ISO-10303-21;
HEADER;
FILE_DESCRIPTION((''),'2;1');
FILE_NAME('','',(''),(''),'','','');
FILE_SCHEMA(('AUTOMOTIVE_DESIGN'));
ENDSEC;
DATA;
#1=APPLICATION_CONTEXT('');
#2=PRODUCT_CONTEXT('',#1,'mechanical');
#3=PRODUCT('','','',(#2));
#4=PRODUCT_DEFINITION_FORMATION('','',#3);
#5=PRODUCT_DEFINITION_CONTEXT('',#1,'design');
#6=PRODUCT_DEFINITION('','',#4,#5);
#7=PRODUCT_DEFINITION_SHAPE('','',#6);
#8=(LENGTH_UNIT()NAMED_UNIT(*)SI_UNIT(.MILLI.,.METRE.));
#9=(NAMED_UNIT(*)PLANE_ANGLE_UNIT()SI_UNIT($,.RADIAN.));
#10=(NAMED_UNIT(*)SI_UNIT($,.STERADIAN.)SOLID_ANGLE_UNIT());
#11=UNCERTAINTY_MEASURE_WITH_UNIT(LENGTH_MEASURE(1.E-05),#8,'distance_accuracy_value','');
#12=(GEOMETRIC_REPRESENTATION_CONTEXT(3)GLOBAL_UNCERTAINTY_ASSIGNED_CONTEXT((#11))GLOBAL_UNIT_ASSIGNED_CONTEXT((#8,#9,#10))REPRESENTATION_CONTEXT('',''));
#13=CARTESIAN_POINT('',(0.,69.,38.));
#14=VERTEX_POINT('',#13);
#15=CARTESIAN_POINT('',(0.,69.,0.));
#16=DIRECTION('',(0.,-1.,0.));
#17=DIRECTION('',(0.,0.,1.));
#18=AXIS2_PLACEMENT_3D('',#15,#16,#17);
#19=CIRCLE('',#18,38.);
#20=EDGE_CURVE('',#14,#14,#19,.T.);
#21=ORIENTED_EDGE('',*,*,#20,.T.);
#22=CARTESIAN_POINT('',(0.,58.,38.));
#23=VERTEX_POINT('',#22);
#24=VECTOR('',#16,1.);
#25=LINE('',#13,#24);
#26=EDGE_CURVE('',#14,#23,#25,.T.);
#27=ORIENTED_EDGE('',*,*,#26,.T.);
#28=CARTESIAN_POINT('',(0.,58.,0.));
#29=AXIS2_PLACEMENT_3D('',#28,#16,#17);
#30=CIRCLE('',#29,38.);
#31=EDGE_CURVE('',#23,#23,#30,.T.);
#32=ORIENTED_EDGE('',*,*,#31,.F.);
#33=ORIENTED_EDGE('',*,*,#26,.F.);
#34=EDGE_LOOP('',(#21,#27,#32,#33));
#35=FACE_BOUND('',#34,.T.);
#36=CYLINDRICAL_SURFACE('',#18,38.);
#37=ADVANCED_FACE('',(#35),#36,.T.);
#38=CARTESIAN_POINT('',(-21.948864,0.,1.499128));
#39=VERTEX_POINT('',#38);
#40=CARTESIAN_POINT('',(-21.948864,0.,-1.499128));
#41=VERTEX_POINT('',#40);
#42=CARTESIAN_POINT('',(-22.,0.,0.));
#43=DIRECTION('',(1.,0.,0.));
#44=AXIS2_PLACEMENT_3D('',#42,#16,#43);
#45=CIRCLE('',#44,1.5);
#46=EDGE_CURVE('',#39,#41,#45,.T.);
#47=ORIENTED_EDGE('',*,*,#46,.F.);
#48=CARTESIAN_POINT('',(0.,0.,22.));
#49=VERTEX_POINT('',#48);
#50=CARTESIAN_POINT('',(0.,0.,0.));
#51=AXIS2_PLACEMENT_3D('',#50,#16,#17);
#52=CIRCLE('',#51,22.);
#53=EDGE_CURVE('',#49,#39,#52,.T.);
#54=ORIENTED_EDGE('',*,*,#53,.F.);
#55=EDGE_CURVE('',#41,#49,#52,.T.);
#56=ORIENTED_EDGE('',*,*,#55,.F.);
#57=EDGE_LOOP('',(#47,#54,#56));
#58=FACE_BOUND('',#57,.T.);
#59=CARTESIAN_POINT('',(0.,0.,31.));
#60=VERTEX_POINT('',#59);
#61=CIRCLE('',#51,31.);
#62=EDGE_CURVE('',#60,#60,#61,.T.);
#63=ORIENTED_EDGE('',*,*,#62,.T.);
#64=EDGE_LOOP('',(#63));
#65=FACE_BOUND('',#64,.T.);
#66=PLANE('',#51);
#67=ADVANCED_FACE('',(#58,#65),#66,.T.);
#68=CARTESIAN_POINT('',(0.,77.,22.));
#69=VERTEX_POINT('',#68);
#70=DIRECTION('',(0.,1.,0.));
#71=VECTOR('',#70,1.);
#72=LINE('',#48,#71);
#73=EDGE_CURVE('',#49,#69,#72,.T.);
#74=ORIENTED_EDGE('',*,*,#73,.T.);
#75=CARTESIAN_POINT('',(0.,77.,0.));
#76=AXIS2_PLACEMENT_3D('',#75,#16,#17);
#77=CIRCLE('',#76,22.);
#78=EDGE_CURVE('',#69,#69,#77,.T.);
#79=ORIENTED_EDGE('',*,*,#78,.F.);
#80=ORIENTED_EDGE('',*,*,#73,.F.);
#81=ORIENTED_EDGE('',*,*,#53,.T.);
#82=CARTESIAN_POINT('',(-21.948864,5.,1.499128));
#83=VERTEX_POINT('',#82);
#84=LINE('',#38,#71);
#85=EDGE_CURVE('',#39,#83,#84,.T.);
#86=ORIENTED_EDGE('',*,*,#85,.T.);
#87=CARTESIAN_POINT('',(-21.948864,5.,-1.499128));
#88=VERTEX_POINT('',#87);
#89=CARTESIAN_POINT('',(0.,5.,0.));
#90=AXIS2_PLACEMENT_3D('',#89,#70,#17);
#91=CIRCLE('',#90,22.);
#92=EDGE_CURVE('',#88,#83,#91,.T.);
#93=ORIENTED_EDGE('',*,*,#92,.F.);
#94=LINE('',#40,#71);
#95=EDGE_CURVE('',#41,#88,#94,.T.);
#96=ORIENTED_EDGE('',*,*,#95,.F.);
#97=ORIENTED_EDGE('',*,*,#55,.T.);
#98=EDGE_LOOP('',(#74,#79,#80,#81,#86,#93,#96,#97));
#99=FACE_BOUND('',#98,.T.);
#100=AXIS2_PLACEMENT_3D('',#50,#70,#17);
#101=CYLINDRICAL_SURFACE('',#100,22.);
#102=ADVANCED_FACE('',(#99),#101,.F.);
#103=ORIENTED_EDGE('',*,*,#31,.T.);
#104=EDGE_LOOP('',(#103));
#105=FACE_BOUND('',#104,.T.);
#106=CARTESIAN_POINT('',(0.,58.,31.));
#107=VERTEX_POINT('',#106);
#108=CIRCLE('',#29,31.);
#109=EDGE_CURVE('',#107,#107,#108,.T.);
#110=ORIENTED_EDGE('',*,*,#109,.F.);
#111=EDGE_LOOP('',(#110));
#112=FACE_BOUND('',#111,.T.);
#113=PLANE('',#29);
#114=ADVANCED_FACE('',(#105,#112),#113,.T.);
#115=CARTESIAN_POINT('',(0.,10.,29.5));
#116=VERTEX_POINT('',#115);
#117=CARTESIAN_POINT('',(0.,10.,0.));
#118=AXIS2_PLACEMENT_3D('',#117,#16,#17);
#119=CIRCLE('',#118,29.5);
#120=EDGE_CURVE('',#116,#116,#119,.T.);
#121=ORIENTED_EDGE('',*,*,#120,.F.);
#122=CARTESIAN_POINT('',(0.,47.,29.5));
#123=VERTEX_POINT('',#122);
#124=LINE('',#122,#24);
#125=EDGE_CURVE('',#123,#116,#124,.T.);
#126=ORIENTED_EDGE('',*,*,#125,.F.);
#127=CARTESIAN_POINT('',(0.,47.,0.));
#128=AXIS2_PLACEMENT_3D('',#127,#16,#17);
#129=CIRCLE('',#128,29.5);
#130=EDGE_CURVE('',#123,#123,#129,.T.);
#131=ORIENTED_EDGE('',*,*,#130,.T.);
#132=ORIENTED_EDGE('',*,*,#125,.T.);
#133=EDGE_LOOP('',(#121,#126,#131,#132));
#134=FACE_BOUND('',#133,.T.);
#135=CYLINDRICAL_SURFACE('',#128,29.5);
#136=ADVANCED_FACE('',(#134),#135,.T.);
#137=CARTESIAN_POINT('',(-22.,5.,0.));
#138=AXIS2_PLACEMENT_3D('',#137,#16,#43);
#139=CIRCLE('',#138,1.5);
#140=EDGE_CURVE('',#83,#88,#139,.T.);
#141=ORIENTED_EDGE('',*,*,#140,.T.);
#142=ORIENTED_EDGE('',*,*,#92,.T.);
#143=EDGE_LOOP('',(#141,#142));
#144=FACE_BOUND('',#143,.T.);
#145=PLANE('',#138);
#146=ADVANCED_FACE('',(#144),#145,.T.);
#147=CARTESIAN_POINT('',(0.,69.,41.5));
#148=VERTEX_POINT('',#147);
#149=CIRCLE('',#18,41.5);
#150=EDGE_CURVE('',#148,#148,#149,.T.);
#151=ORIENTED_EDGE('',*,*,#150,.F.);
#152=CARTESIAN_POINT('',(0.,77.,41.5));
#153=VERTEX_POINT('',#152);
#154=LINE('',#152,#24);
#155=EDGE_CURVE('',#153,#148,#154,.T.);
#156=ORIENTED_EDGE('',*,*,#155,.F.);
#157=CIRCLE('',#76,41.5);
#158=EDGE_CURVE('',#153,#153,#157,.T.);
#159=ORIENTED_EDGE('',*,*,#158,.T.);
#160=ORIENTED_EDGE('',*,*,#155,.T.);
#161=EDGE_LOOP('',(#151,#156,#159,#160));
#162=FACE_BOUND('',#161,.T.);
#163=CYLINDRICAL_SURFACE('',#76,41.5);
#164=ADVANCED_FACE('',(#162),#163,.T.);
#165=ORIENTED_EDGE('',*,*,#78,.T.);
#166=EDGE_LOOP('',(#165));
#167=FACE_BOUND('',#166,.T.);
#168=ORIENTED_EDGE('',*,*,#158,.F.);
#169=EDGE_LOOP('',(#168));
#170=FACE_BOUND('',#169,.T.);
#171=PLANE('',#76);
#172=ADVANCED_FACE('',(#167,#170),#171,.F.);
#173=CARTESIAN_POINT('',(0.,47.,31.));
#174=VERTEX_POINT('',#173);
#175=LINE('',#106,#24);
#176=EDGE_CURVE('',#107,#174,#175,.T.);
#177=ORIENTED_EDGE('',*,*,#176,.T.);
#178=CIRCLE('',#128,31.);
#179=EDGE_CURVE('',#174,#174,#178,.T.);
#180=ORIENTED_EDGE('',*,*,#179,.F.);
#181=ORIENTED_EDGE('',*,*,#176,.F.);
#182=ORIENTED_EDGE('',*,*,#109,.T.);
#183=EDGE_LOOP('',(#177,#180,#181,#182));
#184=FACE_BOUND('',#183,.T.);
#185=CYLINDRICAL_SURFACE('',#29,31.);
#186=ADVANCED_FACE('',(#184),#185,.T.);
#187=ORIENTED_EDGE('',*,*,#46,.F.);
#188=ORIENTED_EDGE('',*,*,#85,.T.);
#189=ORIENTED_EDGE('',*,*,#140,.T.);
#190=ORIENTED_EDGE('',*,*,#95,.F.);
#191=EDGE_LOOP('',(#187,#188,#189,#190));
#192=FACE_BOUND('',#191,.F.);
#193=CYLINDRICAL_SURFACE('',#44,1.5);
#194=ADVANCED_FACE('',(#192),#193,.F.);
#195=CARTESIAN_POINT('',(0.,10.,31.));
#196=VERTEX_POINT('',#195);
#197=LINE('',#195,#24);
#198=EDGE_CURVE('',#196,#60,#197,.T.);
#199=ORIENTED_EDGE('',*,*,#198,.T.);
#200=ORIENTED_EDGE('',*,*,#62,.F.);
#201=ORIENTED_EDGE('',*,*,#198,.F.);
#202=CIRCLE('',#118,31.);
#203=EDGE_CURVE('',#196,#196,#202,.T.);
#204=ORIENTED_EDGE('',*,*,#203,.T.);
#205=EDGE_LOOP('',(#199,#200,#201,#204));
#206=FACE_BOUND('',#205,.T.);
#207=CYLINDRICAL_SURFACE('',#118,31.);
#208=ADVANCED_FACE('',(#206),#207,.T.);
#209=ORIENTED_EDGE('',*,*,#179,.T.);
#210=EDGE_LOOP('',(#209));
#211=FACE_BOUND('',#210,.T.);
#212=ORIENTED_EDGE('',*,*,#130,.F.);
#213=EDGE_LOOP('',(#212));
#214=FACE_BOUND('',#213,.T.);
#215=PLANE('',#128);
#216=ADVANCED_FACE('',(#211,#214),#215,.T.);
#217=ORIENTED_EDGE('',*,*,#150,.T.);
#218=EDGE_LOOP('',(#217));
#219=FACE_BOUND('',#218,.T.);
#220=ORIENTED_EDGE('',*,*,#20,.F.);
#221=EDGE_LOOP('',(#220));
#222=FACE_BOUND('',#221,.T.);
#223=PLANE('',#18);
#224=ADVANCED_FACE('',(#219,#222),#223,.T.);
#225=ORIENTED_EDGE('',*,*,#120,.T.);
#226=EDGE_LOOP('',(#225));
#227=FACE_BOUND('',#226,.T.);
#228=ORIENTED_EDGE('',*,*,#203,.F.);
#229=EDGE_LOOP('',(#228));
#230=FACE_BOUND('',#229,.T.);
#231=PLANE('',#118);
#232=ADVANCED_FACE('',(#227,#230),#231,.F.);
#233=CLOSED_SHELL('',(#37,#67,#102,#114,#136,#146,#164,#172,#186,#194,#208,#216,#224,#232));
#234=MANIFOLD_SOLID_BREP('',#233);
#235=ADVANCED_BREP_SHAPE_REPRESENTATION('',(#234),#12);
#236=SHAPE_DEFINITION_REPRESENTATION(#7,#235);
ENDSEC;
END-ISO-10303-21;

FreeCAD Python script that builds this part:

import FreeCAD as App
import Part
import Sketcher

V = App.Vector

doc = App.newDocument("Part")
body = doc.addObject("PartDesign::Body", "Body")

# Sketch on XY plane
sketch1 = doc.addObject("Sketcher::SketchObject", "Sketch")
body.addObject(sketch1)
sketch1.AttachmentSupport = (doc.XY_Plane, [""])
sketch1.MapMode = "FlatFace"
sketch1.addGeometry(Part.LineSegment(V(22, 77, 0), V(22, 0, 0)), False)
sketch1.addGeometry(Part.LineSegment(V(22, 0, 0), V(31, 0, 0)), False)
sketch1.addGeometry(Part.LineSegment(V(31, 0, 0), V(31, 10, 0)), False)
sketch1.addGeometry(Part.LineSegment(V(31, 10, 0), V(29.5, 10, 0)), False)
sketch1.addGeometry(Part.LineSegment(V(29.5, 10, 0), V(29.5, 47, 0)), False)
sketch1.addGeometry(Part.LineSegment(V(29.5, 47, 0), V(31, 47, 0)), False)
sketch1.addGeometry(Part.LineSegment(V(31, 47, 0), V(31, 58, 0)), False)
sketch1.addGeometry(Part.LineSegment(V(31, 58, 0), V(38, 58, 0)), False)
sketch1.addGeometry(Part.LineSegment(V(38, 58, 0), V(38, 69, 0)), False)
sketch1.addGeometry(Part.LineSegment(V(38, 69, 0), V(41.5, 69, 0)), False)
sketch1.addGeometry(Part.LineSegment(V(41.5, 69, 0), V(41.5, 77, 0)), False)
sketch1.addGeometry(Part.LineSegment(V(41.5, 77, 0), V(22, 77, 0)), False)
sketch1.addConstraint(Sketcher.Constraint("Coincident", 0, 2, 1, 1))
sketch1.addConstraint(Sketcher.Constraint("Coincident", 1, 2, 2, 1))
sketch1.addConstraint(Sketcher.Constraint("Coincident", 2, 2, 3, 1))
sketch1.addConstraint(Sketcher.Constraint("Coincident", 3, 2, 4, 1))
sketch1.addConstraint(Sketcher.Constraint("Coincident", 4, 2, 5, 1))
sketch1.addConstraint(Sketcher.Constraint("Coincident", 5, 2, 6, 1))
sketch1.addConstraint(Sketcher.Constraint("Coincident", 6, 2, 7, 1))
sketch1.addConstraint(Sketcher.Constraint("Coincident", 7, 2, 8, 1))
sketch1.addConstraint(Sketcher.Constraint("Coincident", 8, 2, 9, 1))
sketch1.addConstraint(Sketcher.Constraint("Coincident", 9, 2, 10, 1))
sketch1.addConstraint(Sketcher.Constraint("Coincident", 10, 2, 11, 1))
sketch1.addConstraint(Sketcher.Constraint("Coincident", 11, 2, 0, 1))
sketch1.addConstraint(Sketcher.Constraint("Vertical", 0))
sketch1.addConstraint(Sketcher.Constraint("Horizontal", 1))
sketch1.addConstraint(Sketcher.Constraint("Vertical", 2))
sketch1.addConstraint(Sketcher.Constraint("Horizontal", 3))
sketch1.addConstraint(Sketcher.Constraint("Vertical", 4))
sketch1.addConstraint(Sketcher.Constraint("Horizontal", 5))
sketch1.addConstraint(Sketcher.Constraint("Vertical", 6))
sketch1.addConstraint(Sketcher.Constraint("Horizontal", 7))
sketch1.addConstraint(Sketcher.Constraint("Vertical", 8))
sketch1.addConstraint(Sketcher.Constraint("Horizontal", 9))
sketch1.addConstraint(Sketcher.Constraint("Vertical", 10))
sketch1.addConstraint(Sketcher.Constraint("Horizontal", 11))
sketch1.addConstraint(Sketcher.Constraint("PointOnObject", 0, 2, -1))
sketch1.addConstraint(Sketcher.Constraint("Vertical", 2, 2, 5, 2))
sketch1.addConstraint(Sketcher.Constraint("Equal", 6, 8))
sketch1.addConstraint(Sketcher.Constraint("DistanceX", 1, 1, 1, 2, 9.0))
sketch1.addConstraint(Sketcher.Constraint("DistanceX", 7, 1, 7, 2, 7.0))
sketch1.addConstraint(Sketcher.Constraint("DistanceY", 0, 2, 0, 1, 77.0))
sketch1.addConstraint(Sketcher.Constraint("DistanceY", 2, 1, 2, 2, 10.0))
sketch1.addConstraint(Sketcher.Constraint("DistanceY", 4, 1, 4, 2, 37.0))
sketch1.addConstraint(Sketcher.Constraint("DistanceY", 6, 1, 6, 2, 11.0))
sketch1.addConstraint(Sketcher.Constraint("DistanceX", 3, 2, 3, 1, 1.5))
sketch1.addConstraint(Sketcher.Constraint("DistanceX", 9, 1, 9, 2, 3.5))
sketch1.addConstraint(Sketcher.Constraint("DistanceX", -1, 1, 0, 2, 22.0))
revolution = doc.addObject("PartDesign::Revolution", "Revolution")
body.addObject(revolution)
revolution.Profile = sketch1
revolution.ReferenceAxis = (sketch1, ["V_Axis"])
revolution.Angle = 360

# Sketch on XZ plane
sketch2 = doc.addObject("Sketcher::SketchObject", "Sketch001")
body.addObject(sketch2)
sketch2.AttachmentSupport = (doc.XZ_Plane, [""])
sketch2.MapMode = "FlatFace"
sketch2.addGeometry(Part.Circle(V(-22, 0, 0), V(0, 0, 1), 1.5), False)
sketch2.addConstraint(Sketcher.Constraint("PointOnObject", 0, 3, -1))
sketch2.addConstraint(Sketcher.Constraint("Diameter", 0, 3.0))
sketch2.addConstraint(Sketcher.Constraint("DistanceX", 0, 3, -1, 1, 22.0))
pocket1 = doc.addObject("PartDesign::Pocket", "Pocket")
body.addObject(pocket1)
pocket1.Profile = sketch2
pocket1.Length = 5

doc.recompute()
